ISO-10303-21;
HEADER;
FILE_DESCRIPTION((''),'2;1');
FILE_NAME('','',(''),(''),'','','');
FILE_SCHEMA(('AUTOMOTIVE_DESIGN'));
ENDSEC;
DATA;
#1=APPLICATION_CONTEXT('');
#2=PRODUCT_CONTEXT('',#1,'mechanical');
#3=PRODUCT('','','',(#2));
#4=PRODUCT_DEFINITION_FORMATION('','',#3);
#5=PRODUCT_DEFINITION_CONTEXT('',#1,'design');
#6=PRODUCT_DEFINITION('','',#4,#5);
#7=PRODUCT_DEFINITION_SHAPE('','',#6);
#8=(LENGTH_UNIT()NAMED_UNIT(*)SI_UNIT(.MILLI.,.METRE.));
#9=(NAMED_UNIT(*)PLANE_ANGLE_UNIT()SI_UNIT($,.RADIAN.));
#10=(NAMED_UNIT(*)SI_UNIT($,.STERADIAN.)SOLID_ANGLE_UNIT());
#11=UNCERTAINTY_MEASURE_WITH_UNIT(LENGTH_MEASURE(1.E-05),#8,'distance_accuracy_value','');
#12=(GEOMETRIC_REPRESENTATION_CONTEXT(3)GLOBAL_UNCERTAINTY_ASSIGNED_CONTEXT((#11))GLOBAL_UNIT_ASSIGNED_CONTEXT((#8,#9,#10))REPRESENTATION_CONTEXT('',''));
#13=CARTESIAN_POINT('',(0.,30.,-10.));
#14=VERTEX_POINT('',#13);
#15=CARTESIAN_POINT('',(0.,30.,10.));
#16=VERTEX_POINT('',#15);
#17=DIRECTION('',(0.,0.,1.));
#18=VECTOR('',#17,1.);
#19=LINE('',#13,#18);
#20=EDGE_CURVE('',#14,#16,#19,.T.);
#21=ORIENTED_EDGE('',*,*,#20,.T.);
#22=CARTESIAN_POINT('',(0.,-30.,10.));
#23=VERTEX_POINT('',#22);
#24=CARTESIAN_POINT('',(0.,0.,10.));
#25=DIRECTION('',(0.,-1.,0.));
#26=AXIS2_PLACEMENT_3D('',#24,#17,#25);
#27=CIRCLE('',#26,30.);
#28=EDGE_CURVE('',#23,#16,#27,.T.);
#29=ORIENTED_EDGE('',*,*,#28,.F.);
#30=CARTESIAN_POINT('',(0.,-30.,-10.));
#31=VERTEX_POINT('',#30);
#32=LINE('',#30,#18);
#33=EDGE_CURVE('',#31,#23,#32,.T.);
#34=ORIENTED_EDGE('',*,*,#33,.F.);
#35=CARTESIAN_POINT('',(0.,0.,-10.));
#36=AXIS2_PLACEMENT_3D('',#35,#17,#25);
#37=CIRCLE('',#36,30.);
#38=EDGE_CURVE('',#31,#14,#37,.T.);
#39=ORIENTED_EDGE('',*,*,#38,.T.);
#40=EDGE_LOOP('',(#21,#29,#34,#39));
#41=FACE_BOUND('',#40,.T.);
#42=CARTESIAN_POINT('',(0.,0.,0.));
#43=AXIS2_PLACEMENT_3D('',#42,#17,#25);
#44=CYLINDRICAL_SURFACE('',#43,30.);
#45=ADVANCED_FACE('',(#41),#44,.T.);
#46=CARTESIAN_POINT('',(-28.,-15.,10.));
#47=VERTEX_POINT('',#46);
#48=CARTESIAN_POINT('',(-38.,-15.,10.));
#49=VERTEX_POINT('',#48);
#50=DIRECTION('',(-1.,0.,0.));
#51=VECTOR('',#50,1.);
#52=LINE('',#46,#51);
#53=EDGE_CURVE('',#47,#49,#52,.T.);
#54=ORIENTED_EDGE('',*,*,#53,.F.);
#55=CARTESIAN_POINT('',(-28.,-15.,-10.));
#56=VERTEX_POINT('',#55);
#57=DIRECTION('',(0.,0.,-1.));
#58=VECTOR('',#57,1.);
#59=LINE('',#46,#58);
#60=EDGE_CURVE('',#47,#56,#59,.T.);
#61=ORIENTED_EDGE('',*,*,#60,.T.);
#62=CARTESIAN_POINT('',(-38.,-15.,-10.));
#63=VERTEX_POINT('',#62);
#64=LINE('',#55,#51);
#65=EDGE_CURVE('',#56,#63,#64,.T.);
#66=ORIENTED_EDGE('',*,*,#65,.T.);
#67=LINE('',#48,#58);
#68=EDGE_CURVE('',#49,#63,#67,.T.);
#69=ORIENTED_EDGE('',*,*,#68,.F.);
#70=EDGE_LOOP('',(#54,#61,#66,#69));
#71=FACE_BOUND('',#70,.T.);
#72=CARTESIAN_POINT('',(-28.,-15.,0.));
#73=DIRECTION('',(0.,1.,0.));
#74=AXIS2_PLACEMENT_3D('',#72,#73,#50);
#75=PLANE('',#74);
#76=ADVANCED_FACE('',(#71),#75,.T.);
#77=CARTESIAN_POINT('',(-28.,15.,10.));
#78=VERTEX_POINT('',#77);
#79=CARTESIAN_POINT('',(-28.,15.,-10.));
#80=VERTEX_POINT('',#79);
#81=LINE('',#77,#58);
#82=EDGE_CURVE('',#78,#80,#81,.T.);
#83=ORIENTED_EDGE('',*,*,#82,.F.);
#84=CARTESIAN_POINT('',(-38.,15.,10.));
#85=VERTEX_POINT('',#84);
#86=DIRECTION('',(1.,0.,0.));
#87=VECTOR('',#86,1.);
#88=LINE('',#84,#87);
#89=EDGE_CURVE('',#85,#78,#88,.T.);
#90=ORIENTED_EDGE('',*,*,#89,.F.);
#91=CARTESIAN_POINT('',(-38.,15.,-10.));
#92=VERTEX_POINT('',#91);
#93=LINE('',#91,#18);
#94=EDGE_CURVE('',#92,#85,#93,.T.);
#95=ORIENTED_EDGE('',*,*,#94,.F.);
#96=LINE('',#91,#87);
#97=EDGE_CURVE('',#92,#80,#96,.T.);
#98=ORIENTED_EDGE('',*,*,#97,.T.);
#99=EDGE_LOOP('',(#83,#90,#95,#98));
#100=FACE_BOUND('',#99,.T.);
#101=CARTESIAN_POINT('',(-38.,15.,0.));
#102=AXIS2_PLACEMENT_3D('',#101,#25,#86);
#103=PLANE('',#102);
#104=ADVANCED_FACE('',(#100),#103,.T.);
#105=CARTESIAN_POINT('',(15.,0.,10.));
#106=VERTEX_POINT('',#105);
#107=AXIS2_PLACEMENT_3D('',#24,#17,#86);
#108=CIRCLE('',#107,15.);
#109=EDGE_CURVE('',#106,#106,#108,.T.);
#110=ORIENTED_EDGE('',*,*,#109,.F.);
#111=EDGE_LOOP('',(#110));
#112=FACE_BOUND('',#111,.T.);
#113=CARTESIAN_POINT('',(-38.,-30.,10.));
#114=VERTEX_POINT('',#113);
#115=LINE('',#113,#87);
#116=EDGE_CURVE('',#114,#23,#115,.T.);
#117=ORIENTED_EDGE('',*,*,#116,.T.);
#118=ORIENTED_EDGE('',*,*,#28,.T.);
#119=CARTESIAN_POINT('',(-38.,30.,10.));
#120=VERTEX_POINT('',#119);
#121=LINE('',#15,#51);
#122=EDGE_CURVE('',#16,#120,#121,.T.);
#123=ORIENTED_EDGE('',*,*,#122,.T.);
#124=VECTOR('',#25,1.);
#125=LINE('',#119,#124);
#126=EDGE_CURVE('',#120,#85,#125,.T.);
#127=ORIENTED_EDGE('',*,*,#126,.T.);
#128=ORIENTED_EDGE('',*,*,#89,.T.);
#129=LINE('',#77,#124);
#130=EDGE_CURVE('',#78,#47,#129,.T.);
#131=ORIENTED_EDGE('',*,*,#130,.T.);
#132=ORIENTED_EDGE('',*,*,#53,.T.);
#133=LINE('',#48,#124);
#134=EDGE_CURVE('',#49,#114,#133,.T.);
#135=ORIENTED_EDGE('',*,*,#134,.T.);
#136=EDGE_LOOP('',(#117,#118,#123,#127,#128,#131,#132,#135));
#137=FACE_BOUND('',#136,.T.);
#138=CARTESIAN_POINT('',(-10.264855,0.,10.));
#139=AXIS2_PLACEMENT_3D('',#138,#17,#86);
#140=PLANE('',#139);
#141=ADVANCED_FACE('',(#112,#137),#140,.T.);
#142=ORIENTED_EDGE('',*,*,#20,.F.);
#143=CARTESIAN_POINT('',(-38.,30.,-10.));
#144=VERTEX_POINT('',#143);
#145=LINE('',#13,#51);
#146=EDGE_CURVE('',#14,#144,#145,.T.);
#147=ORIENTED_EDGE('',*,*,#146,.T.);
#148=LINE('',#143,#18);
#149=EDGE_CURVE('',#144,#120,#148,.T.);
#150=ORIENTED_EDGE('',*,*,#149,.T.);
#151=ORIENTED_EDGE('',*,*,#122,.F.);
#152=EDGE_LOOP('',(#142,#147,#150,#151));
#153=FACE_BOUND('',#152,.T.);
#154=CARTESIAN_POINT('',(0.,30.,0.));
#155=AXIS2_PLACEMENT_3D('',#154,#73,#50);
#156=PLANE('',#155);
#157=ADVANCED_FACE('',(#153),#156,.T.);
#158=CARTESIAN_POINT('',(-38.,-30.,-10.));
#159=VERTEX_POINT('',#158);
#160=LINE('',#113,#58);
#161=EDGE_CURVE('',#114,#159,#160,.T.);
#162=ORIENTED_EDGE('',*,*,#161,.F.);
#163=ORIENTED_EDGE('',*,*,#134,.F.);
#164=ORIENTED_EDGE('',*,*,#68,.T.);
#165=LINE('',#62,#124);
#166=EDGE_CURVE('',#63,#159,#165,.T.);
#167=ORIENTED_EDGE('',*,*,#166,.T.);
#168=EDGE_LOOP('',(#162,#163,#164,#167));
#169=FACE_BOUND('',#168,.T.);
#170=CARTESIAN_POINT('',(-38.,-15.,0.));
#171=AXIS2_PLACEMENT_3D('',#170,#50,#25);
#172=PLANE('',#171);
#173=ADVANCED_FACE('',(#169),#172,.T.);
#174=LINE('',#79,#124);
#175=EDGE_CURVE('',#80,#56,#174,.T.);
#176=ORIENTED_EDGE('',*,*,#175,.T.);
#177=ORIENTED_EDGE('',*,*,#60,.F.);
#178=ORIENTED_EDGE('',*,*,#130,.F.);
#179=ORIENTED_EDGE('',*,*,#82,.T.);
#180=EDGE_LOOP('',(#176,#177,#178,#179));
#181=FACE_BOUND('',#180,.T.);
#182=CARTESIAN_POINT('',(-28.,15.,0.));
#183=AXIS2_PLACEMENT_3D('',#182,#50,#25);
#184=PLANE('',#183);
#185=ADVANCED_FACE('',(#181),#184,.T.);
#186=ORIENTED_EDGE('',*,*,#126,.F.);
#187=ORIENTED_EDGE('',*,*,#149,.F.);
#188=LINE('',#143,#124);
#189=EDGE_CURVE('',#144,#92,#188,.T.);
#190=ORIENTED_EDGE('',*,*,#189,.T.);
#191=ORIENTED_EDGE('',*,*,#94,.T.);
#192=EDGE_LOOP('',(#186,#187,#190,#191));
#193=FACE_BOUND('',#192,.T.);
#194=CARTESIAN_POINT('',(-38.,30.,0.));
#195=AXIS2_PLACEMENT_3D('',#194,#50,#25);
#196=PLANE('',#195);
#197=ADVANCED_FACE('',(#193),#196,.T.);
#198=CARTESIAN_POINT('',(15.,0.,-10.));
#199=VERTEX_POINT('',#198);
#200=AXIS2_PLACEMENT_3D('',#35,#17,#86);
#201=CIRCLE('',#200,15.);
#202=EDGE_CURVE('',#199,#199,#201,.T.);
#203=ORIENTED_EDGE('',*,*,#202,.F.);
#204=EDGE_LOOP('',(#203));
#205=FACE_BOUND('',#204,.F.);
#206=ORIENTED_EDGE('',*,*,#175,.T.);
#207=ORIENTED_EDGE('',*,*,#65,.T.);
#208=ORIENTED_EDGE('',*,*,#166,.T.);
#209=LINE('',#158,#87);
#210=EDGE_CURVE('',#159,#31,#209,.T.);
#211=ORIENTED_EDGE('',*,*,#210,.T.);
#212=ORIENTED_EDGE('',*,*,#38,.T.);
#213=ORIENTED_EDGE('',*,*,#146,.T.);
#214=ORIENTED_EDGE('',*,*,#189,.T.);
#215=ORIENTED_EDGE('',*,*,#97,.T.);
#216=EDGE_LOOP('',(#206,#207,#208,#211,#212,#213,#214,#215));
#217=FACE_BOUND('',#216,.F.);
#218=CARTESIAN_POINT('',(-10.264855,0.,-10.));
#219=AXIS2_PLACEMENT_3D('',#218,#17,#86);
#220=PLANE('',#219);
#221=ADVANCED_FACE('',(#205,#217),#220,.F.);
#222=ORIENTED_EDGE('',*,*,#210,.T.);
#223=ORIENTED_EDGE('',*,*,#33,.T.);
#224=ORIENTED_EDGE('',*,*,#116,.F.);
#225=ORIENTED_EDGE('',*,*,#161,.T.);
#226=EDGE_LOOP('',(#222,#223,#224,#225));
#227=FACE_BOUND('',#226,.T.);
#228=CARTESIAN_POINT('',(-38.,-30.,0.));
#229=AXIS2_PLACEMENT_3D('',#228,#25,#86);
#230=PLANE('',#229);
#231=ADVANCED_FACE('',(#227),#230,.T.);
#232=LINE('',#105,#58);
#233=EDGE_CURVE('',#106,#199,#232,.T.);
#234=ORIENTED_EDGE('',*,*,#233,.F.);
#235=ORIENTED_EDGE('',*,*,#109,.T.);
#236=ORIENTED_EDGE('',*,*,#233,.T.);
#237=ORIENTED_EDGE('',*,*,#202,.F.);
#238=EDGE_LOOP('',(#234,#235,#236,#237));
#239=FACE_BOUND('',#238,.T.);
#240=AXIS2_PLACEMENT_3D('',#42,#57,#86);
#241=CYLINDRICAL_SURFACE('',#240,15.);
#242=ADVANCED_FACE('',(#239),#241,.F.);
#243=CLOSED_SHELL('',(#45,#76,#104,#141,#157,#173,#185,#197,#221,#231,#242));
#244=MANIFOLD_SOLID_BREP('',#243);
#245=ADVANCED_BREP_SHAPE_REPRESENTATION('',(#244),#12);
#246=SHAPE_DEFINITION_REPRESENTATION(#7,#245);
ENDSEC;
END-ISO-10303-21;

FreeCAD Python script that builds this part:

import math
import FreeCAD as App
import Part
import Sketcher

V = App.Vector
Q = App.Units.Quantity

doc = App.newDocument("Part")
body = doc.addObject("PartDesign::Body", "Body")

# Sketch on XY plane
sketch1 = doc.addObject("Sketcher::SketchObject", "Sketch")
body.addObject(sketch1)
sketch1.AttachmentSupport = (doc.XY_Plane, [""])
sketch1.MapMode = "FlatFace"
sketch1.addGeometry([
    Part.LineSegment(V(-38, -30, 0), V(0, -30, 0)),  # 0
    Part.ArcOfCircle(Part.Circle(V(0, 0, 0), V(0, 0, 1), 30), math.radians(-90), math.radians(90)),  # 1
    Part.LineSegment(V(0, 30, 0), V(-38, 30, 0)),  # 2
    Part.LineSegment(V(-38, 30, 0), V(-38, 15, 0)),  # 3
    Part.LineSegment(V(-38, 15, 0), V(-28, 15, 0)),  # 4
    Part.LineSegment(V(-28, 15, 0), V(-28, -15, 0)),  # 5
    Part.LineSegment(V(-28, -15, 0), V(-38, -15, 0)),  # 6
    Part.LineSegment(V(-38, -15, 0), V(-38, -30, 0)),  # 7
    Part.Circle(V(0, 0, 0), V(0, 0, 1), 15),  # 8
], False)
sketch1.addConstraint([
    Sketcher.Constraint("Tangent", 0, 2, 1, 1),
    Sketcher.Constraint("Tangent", 1, 2, 2, 1),
    Sketcher.Constraint("Coincident", 2, 2, 3, 1),
    Sketcher.Constraint("Coincident", 3, 2, 4, 1),
    Sketcher.Constraint("Coincident", 4, 2, 5, 1),
    Sketcher.Constraint("Coincident", 5, 2, 6, 1),
    Sketcher.Constraint("Coincident", 6, 2, 7, 1),
    Sketcher.Constraint("Coincident", 7, 2, 0, 1),
    Sketcher.Constraint("Horizontal", 0),
    Sketcher.Constraint("Horizontal", 2),
    Sketcher.Constraint("Vertical", 3),
    Sketcher.Constraint("Horizontal", 4),
    Sketcher.Constraint("Vertical", 5),
    Sketcher.Constraint("Horizontal", 6),
    Sketcher.Constraint("Vertical", 7),
    Sketcher.Constraint("Coincident", 1, 3, -1, 1),
    Sketcher.Constraint("Coincident", 8, 3, -1, 1),
    Sketcher.Constraint("Symmetric", 3, 2, 6, 2, -1),
    Sketcher.Constraint("Diameter", 8, Q("30 mm")),
    Sketcher.Constraint("Radius", 1, Q("30 mm")),
    Sketcher.Constraint("DistanceX", 0, 1, 0, 2, Q("38 mm")),
    Sketcher.Constraint("DistanceX", 4, 1, 4, 2, Q("10 mm")),
    Sketcher.Constraint("DistanceY", 3, 2, 3, 1, Q("15 mm")),
])
pad1 = doc.addObject("PartDesign::Pad", "Pad")
body.addObject(pad1)
pad1.Profile = sketch1
pad1.Length = 20
pad1.Midplane = True

doc.recompute()
